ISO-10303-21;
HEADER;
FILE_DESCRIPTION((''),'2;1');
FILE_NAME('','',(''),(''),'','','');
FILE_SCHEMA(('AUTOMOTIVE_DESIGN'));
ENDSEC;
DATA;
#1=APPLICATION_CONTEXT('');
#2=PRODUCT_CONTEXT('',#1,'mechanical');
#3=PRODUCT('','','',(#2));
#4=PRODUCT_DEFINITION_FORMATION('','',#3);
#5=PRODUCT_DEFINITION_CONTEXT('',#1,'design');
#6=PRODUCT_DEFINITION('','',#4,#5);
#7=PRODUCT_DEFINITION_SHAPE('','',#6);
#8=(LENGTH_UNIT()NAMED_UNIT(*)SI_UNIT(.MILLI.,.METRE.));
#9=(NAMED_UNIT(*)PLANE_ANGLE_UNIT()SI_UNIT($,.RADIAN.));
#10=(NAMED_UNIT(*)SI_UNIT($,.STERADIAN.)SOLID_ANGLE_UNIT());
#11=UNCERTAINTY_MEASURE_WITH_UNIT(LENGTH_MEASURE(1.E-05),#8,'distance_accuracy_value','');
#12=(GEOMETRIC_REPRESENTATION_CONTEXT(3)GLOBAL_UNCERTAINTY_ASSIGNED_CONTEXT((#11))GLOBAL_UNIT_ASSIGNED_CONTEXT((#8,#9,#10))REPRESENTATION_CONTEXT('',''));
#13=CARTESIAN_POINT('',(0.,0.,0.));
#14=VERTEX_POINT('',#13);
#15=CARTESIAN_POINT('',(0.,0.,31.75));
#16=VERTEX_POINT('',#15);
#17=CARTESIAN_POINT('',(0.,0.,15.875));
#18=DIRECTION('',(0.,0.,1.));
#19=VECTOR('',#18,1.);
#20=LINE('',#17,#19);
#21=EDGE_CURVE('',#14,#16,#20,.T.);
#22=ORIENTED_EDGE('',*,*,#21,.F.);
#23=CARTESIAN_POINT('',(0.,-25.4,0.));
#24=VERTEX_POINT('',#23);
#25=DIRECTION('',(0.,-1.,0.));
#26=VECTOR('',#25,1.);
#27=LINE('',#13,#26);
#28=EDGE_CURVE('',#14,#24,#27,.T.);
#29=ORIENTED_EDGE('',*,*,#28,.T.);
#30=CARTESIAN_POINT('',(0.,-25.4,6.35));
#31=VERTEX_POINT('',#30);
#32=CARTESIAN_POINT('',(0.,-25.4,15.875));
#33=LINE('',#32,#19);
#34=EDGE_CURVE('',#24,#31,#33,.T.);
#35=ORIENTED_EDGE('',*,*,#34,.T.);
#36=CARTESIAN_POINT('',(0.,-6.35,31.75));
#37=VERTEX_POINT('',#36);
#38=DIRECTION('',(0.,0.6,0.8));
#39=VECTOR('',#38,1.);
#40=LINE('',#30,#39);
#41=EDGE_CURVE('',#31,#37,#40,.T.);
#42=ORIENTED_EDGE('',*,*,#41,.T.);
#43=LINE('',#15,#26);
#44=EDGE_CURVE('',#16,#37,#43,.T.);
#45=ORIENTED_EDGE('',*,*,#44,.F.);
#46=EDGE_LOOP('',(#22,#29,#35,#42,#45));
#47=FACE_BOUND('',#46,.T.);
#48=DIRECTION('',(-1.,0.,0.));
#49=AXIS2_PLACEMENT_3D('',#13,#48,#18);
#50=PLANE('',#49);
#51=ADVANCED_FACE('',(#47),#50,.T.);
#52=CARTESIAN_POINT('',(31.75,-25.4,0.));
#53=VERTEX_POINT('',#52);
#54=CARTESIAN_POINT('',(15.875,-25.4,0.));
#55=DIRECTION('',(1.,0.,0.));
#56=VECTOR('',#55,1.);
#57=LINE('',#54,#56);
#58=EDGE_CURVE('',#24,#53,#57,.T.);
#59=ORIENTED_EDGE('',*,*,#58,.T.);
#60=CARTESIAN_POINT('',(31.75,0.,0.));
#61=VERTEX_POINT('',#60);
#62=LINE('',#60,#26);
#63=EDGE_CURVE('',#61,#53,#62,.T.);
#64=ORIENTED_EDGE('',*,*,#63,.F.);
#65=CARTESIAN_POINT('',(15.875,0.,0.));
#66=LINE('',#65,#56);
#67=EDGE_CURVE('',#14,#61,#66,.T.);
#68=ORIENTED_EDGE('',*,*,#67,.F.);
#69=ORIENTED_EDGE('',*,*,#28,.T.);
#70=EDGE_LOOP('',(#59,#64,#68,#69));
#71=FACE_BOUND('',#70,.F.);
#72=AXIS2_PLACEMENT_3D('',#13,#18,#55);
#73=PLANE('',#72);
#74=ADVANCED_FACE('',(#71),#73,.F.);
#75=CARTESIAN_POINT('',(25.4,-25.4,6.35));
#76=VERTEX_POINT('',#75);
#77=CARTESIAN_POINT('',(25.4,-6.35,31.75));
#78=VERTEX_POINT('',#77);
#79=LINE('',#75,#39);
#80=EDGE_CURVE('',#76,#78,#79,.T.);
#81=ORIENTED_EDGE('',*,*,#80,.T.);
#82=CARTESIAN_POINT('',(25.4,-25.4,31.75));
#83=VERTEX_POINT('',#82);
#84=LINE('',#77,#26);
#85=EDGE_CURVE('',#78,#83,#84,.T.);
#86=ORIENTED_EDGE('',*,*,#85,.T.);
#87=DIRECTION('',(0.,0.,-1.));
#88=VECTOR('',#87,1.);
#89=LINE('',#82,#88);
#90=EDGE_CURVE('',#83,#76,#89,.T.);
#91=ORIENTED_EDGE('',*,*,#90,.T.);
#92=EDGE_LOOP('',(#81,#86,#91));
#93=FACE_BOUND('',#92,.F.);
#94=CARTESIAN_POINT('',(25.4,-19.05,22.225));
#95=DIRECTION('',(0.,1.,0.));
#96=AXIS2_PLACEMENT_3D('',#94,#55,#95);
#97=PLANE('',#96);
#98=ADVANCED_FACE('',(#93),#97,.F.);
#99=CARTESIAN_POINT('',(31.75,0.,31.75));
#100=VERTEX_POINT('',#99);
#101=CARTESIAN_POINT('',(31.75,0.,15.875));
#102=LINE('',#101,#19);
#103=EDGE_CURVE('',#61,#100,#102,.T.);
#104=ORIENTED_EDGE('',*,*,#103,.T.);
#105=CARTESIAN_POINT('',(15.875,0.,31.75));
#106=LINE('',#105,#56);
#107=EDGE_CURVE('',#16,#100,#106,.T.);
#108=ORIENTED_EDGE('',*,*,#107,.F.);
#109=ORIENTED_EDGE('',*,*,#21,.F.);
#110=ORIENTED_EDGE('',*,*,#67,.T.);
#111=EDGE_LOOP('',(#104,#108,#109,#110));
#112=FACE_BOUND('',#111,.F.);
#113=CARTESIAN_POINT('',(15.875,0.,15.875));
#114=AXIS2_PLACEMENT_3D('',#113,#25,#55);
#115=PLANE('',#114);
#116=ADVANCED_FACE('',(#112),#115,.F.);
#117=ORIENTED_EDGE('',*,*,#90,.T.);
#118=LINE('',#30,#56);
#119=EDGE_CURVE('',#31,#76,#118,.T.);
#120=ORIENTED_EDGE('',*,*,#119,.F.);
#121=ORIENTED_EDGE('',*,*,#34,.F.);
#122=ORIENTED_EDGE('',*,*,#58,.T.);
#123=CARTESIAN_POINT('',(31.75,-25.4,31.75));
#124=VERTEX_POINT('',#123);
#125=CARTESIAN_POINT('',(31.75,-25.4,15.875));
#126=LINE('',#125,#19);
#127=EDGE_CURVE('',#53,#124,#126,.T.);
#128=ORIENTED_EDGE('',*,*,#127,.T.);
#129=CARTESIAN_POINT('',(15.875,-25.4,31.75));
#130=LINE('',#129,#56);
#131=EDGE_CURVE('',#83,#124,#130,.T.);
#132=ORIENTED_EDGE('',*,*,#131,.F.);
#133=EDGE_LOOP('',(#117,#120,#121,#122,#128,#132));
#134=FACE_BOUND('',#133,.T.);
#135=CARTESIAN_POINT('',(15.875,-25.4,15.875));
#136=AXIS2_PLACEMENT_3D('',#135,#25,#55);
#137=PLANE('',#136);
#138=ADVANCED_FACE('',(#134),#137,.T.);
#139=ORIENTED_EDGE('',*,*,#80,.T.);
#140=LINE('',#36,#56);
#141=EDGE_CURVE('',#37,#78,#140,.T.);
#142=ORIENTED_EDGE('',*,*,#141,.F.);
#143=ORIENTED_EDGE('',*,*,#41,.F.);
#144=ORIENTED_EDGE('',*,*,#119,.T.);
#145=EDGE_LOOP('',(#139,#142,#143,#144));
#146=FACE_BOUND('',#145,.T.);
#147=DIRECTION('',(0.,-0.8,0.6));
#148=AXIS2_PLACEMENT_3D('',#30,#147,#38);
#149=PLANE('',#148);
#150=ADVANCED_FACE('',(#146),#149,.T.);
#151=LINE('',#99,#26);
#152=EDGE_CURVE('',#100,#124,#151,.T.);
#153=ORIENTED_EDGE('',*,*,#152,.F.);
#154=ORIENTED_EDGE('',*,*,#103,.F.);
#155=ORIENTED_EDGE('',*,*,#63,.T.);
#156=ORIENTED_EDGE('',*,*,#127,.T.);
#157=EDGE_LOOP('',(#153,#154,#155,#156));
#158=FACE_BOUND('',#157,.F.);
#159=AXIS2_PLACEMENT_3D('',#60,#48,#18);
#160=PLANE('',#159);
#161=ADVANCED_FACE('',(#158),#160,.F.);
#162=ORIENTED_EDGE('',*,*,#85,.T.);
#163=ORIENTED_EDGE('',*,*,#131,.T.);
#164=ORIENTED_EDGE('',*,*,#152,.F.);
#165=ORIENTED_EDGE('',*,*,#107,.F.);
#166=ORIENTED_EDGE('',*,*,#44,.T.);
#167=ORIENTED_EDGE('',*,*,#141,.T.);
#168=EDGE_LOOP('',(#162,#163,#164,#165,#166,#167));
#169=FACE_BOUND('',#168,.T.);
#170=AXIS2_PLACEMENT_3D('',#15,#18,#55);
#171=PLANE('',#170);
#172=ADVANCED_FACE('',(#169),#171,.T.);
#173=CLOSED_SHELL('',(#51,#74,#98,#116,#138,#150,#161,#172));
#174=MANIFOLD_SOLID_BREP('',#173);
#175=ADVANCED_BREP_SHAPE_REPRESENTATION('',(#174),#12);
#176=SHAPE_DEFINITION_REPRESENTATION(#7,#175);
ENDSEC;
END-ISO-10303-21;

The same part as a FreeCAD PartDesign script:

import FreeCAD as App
import Part
import Sketcher
from FreeCAD import Vector
Q = App.Units.Quantity


def add_polygon(sketch, points):
    """Adds a closed chain of lines whose ends are joined by coincident constraints."""
    first, n = sketch.GeometryCount, len(points)
    for a, b in zip(points, points[1:] + points[:1]):
        sketch.addGeometry(Part.LineSegment(App.Vector(*a, 0), App.Vector(*b, 0)), False)
    for i in range(n):
        sketch.addConstraint(Sketcher.Constraint("Coincident", first + i, 2, first + (i + 1) % n, 1))

doc = App.newDocument("Part")
body = doc.addObject("PartDesign::Body", "Body")

# Sketch on XZ plane
sketch1 = body.newObject("Sketcher::SketchObject", "Sketch")
sketch1.AttachmentSupport = (doc.getObject("XZ_Plane"), [""])
sketch1.MapMode = "FlatFace"
add_polygon(sketch1, [(0, 32), (0, 0), (32, 0), (32, 32)])  # lines 0-3
sketch1.addConstraint(Sketcher.Constraint("Vertical", 0))
sketch1.addConstraint(Sketcher.Constraint("Horizontal", 1))
sketch1.addConstraint(Sketcher.Constraint("Vertical", 2))
sketch1.addConstraint(Sketcher.Constraint("Horizontal", 3))
sketch1.addConstraint(Sketcher.Constraint("Coincident", 0, 2, -1, 1))
sketch1.addConstraint(Sketcher.Constraint("Equal", 3, 0))
sketch1.addConstraint(Sketcher.Constraint("DistanceX", 1, 1, 1, 2, Q("1.25 in")))
pad1 = body.newObject("PartDesign::Pad", "Pad")
pad1.Profile = sketch1
pad1.Length = Q("1 in")

# Sketch on YZ plane
sketch2 = body.newObject("Sketcher::SketchObject", "Sketch001")
sketch2.AttachmentSupport = (doc.getObject("YZ_Plane"), [""])
sketch2.MapMode = "FlatFace"
add_polygon(sketch2, [(-25, 6), (-6, 32), (-25, 32)])  # lines 0-2
sketch2.addConstraint(Sketcher.Constraint("Horizontal", 1))
sketch2.addConstraint(Sketcher.Constraint("Vertical", 2))
sketch2.addConstraint(Sketcher.Constraint("DistanceY", 2, 2, 2, 1, Q("1 in")))
sketch2.addConstraint(Sketcher.Constraint("DistanceX", 1, 2, -1, 1, Q("1 in")))
sketch2.addConstraint(Sketcher.Constraint("DistanceX", 1, 2, 1, 1, Q("0.75 in")))
sketch2.addConstraint(Sketcher.Constraint("DistanceY", -1, 1, 0, 2, Q("1.25 in")))
pocket1 = body.newObject("PartDesign::Pocket", "Pocket")
pocket1.Profile = sketch2
pocket1.Length = Q("1 in")
pocket1.Reversed = True

doc.recompute()
